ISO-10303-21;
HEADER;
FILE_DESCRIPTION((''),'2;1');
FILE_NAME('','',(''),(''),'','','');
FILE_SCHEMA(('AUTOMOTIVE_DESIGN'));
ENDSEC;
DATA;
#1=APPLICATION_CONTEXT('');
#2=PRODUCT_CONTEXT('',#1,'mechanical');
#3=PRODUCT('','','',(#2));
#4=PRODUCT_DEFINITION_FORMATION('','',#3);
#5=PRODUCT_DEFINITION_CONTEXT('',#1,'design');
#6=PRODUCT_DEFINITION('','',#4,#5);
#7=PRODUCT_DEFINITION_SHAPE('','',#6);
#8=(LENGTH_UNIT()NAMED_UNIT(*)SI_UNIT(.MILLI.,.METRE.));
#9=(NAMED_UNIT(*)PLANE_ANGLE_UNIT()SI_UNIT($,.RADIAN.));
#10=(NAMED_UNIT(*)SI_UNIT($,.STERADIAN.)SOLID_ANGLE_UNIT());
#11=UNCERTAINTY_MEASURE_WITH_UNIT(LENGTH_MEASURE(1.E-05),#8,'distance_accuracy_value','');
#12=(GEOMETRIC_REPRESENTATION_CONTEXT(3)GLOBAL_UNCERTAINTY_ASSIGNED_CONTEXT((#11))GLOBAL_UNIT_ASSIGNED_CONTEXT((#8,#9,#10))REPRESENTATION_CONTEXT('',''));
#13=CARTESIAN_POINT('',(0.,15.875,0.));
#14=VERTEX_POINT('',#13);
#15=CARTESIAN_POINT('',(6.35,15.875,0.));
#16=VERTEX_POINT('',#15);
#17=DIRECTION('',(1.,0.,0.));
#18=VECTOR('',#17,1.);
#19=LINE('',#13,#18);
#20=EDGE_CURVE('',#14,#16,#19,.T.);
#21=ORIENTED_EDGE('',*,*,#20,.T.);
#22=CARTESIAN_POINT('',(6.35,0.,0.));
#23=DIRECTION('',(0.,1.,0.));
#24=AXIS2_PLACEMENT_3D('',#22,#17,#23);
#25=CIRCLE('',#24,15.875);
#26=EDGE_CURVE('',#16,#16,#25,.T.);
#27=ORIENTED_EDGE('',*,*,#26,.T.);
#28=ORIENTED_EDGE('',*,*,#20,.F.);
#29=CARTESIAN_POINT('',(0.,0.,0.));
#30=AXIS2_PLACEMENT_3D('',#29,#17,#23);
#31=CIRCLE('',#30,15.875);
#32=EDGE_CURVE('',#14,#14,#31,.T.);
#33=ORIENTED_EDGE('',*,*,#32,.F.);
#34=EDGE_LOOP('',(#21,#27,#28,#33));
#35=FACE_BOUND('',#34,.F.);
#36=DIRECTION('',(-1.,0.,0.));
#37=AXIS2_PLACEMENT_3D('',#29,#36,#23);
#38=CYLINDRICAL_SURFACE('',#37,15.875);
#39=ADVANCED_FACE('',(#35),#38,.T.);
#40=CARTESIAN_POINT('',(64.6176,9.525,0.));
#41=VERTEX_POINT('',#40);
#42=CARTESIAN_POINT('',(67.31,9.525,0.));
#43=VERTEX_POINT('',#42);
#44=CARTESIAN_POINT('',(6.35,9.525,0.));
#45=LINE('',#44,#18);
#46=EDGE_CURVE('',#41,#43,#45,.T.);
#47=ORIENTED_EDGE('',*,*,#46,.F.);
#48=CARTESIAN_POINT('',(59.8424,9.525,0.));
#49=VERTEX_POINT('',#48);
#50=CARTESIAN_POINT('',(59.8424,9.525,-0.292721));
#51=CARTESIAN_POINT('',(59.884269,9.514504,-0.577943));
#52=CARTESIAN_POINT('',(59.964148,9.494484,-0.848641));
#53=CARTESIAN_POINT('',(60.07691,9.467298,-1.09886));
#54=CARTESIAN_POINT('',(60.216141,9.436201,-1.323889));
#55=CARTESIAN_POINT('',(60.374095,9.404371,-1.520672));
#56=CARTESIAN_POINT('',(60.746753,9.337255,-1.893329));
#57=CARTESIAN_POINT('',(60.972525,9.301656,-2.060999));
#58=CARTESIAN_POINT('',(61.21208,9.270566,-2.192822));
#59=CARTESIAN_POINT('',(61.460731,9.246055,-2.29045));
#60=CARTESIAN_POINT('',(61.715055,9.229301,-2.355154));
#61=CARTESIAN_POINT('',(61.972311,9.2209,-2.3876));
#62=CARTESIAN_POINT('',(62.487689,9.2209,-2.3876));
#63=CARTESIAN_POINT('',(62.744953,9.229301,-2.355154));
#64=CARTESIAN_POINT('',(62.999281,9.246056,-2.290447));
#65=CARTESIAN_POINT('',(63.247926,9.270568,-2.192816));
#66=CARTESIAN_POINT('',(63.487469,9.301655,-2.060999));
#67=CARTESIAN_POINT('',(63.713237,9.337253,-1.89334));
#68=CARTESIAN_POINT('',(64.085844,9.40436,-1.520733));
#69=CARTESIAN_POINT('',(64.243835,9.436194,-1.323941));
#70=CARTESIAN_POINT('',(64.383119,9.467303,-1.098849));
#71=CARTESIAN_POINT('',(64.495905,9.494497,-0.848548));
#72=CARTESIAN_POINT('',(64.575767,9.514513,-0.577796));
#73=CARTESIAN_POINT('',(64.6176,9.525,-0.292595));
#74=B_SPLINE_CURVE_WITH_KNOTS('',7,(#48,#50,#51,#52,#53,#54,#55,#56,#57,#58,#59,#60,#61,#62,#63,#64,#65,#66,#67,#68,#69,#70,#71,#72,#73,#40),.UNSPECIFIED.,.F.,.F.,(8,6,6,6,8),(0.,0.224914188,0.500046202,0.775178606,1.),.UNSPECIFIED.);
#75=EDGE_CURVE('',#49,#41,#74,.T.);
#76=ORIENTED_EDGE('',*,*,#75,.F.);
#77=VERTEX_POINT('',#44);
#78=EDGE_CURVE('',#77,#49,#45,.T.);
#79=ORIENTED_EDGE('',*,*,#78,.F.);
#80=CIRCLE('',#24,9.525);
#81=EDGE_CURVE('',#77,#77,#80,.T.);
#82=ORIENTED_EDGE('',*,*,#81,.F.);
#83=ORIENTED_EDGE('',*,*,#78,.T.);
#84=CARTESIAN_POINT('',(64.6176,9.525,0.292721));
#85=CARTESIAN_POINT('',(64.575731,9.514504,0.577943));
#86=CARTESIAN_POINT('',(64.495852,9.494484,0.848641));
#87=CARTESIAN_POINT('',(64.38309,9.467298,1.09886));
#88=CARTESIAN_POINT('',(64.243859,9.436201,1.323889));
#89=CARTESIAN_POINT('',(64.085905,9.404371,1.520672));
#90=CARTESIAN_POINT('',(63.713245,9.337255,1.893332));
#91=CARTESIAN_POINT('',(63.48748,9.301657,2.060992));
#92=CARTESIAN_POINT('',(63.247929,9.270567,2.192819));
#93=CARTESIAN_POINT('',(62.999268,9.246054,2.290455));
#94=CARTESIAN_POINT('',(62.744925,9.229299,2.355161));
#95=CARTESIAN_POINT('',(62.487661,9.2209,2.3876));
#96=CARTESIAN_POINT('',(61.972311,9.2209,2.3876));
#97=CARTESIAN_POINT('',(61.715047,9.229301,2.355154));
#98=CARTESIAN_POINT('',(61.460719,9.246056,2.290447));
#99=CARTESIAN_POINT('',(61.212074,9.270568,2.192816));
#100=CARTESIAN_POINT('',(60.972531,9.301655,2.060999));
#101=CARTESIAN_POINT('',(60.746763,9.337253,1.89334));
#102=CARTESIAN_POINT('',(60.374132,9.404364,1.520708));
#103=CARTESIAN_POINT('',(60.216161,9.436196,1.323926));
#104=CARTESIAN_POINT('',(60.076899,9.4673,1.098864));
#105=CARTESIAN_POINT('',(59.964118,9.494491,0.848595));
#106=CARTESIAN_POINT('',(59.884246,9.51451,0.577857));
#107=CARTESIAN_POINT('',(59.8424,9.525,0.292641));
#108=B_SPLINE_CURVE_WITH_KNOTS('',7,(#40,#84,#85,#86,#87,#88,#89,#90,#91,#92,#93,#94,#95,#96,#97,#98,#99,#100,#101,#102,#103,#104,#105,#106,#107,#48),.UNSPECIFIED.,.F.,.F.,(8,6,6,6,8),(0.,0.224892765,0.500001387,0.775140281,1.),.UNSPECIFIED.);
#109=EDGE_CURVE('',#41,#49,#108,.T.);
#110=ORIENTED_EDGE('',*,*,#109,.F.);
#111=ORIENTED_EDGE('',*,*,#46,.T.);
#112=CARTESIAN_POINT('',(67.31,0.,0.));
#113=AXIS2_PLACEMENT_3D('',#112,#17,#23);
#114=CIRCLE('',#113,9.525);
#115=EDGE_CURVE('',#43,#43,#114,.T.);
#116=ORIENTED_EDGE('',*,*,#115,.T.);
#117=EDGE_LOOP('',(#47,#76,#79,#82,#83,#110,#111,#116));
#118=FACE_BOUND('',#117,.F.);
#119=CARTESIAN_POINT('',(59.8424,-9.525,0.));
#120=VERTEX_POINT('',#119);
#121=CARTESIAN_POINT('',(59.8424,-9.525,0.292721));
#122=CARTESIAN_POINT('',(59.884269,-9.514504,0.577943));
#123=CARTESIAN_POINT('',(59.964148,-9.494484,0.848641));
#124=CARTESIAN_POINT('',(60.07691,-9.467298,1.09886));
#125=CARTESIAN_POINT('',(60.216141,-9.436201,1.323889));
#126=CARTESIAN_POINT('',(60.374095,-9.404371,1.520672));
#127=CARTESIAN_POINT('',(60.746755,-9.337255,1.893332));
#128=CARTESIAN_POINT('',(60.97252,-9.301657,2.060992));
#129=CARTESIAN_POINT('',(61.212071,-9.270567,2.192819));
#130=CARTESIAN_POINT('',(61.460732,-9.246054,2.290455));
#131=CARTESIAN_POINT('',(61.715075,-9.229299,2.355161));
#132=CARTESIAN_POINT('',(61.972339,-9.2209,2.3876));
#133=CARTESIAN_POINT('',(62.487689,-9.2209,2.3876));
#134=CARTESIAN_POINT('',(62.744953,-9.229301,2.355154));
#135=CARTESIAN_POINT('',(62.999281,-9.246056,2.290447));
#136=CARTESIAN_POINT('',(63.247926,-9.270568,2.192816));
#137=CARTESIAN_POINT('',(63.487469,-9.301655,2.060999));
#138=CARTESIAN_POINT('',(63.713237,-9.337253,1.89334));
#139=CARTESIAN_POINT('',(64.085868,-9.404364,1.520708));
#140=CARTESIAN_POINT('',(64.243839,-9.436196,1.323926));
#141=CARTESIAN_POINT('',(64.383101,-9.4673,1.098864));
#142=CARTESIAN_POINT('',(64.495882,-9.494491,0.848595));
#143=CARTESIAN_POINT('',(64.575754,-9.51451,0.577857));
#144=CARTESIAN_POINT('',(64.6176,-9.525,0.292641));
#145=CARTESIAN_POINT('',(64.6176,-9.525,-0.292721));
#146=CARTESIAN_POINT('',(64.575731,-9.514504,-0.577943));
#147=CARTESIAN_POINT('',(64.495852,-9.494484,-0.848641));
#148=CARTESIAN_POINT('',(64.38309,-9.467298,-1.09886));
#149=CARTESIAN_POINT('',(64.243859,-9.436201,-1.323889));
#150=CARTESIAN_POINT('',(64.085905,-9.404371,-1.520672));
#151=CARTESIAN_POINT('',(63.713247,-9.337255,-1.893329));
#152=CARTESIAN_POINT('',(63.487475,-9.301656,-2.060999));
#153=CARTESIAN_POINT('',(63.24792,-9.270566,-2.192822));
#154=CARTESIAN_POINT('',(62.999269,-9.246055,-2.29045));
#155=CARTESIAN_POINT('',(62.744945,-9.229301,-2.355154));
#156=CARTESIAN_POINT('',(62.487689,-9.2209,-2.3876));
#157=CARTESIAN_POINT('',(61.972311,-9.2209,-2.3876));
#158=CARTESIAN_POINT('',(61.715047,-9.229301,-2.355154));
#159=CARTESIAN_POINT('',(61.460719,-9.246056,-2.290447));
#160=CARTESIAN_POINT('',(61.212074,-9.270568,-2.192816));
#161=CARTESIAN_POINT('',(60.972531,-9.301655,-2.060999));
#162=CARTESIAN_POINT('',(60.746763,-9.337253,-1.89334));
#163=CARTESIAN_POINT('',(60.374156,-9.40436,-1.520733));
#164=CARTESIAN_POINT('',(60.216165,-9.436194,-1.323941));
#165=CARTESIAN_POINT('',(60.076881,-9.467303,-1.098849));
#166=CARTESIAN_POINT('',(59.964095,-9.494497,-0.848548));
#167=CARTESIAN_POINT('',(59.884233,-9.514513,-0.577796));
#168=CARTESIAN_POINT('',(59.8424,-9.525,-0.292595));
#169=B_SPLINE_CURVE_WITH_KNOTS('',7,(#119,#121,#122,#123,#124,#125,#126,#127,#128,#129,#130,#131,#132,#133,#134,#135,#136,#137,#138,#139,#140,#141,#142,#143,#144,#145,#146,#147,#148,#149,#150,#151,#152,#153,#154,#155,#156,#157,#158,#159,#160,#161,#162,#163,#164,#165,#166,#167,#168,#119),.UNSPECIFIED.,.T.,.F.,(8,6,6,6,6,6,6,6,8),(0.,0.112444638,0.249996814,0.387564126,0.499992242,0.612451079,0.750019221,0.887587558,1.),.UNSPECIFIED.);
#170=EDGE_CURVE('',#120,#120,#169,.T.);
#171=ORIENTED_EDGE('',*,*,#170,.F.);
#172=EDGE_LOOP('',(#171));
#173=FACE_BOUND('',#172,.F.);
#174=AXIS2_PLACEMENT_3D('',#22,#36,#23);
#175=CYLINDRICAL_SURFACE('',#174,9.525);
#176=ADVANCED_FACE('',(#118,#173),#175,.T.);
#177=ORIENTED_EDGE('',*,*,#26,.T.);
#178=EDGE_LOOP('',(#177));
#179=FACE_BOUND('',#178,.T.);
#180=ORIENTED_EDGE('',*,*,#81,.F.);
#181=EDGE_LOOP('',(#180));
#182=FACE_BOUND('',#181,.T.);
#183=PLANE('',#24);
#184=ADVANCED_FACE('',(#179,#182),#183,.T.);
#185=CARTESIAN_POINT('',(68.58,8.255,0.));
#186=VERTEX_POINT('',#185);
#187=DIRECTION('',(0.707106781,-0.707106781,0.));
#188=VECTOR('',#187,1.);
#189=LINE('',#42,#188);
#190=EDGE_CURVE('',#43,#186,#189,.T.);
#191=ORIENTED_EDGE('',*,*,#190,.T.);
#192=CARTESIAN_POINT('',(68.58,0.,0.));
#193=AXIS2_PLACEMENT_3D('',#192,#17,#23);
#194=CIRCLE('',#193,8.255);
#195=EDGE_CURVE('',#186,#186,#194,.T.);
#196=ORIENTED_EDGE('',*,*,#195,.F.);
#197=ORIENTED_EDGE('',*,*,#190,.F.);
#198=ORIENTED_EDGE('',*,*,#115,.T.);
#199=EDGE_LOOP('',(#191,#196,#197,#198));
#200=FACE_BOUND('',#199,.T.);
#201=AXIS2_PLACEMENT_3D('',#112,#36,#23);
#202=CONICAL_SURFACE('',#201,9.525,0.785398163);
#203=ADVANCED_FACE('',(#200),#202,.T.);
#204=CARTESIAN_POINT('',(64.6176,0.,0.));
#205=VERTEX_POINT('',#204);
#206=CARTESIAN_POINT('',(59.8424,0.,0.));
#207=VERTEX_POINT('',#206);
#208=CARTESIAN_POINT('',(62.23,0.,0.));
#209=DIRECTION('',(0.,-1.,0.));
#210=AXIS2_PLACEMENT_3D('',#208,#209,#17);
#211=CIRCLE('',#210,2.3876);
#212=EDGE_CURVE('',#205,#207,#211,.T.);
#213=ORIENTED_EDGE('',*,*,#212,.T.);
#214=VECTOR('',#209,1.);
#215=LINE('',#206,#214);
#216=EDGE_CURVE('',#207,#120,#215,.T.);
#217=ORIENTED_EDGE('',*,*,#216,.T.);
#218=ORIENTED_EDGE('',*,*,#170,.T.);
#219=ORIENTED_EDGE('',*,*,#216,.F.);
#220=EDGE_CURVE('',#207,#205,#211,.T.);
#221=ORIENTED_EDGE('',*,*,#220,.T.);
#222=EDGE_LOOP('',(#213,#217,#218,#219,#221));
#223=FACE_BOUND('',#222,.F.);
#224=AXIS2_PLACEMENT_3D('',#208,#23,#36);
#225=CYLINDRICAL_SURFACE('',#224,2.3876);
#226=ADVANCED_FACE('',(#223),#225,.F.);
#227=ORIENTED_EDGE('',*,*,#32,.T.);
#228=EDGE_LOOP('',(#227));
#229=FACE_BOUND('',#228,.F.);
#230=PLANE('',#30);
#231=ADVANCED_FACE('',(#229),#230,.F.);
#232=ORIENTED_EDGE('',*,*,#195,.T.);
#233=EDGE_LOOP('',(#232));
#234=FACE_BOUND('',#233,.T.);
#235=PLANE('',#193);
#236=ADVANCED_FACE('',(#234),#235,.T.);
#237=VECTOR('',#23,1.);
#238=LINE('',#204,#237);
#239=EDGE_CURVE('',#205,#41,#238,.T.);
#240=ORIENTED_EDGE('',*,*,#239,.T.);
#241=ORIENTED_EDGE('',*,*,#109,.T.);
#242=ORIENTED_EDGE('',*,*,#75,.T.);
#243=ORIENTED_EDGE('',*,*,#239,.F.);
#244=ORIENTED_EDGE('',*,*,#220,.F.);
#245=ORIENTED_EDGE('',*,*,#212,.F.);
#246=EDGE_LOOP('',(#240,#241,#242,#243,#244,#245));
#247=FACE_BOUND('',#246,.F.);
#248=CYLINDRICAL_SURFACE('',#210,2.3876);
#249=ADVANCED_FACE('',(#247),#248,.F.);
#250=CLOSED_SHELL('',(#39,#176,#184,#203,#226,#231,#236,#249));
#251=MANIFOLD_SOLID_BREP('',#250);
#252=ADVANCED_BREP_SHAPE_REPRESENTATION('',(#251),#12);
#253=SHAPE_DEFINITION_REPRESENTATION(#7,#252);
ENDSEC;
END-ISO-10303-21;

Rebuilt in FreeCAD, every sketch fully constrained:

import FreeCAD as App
import Part
import Sketcher
Q = App.Units.Quantity


def edges_at(feature, points):
    """Names of the edges that pass closest to the given points."""
    edges = feature.Shape.Edges
    near = lambda p: min(range(len(edges)), key=lambda i: edges[i].distToShape(Part.Vertex(*p))[0])
    return sorted({f"Edge{near(p) + 1}" for p in points})

doc = App.newDocument("Part")
body = doc.addObject("PartDesign::Body", "Body")

sketch1 = body.newObject("Sketcher::SketchObject", "Sketch")
sketch1.AttachmentSupport = (doc.getObject("YZ_Plane"), [""])
sketch1.MapMode = "FlatFace"
sketch1.addGeometry(Part.Circle(App.Vector(0, 0, 0), App.Vector(0, 0, 1), 16), False)
sketch1.addConstraint([
    Sketcher.Constraint("Coincident", 0, 3, -1, 1),
    Sketcher.Constraint("Diameter", 0, Q("1.25 in")),
])
pad1 = body.newObject("PartDesign::Pad", "Pad")
pad1.Profile = sketch1
pad1.Length = Q("0.25 in")

sketch2 = body.newObject("Sketcher::SketchObject", "Sketch001")
sketch2.AttachmentSupport = (doc.getObject("YZ_Plane"), [""])
sketch2.MapMode = "FlatFace"
sketch2.AttachmentOffset = App.Placement(App.Vector(0, 0, 0.25 * 25.4), App.Rotation())
sketch2.addGeometry(Part.Circle(App.Vector(0, 0, 0), App.Vector(0, 0, 1), 10), False)
sketch2.addConstraint([
    Sketcher.Constraint("Coincident", 0, 3, -1, 1),
    Sketcher.Constraint("Diameter", 0, Q("0.75 in")),
])
pad2 = body.newObject("PartDesign::Pad", "Pad001")
pad2.Profile = sketch2
pad2.Length = Q("2.45 in")
doc.recompute()

chamfer = body.newObject("PartDesign::Chamfer", "Chamfer")
chamfer.Base = (pad2, edges_at(pad2, [(68.58, -9.525, 0)]))
chamfer.Size = Q("0.05 in")

sketch3 = body.newObject("Sketcher::SketchObject", "Sketch002")
sketch3.AttachmentSupport = (doc.getObject("XZ_Plane"), [""])
sketch3.MapMode = "FlatFace"
sketch3.addGeometry(Part.Circle(App.Vector(62.2, 0, 0), App.Vector(0, 0, 1), 2.4), False)
sketch3.addConstraint([
    Sketcher.Constraint("PointOnObject", 0, 3, -1),
    Sketcher.Constraint("Diameter", 0, Q("0.188 in")),
    Sketcher.Constraint("DistanceX", -1, 1, 0, 3, Q("2.45 in")),
])
pocket1 = body.newObject("PartDesign::Pocket", "Pocket")
pocket1.Profile = sketch3
pocket1.Type = "ThroughAll"

sketch4 = body.newObject("Sketcher::SketchObject", "Sketch003")
sketch4.AttachmentSupport = (doc.getObject("XZ_Plane"), [""])
sketch4.MapMode = "FlatFace"
sketch4.addGeometry(Part.Circle(App.Vector(62.2, 0, 0), App.Vector(0, 0, 1), 2.4), False)
sketch4.addConstraint([
    Sketcher.Constraint("PointOnObject", 0, 3, -1),
    Sketcher.Constraint("Diameter", 0, Q("0.188 in")),
    Sketcher.Constraint("DistanceX", -1, 1, 0, 3, Q("2.45 in")),
])
pocket2 = body.newObject("PartDesign::Pocket", "Pocket001")
pocket2.Profile = sketch4
pocket2.Type = "ThroughAll"
pocket2.Reversed = True

doc.recompute()
